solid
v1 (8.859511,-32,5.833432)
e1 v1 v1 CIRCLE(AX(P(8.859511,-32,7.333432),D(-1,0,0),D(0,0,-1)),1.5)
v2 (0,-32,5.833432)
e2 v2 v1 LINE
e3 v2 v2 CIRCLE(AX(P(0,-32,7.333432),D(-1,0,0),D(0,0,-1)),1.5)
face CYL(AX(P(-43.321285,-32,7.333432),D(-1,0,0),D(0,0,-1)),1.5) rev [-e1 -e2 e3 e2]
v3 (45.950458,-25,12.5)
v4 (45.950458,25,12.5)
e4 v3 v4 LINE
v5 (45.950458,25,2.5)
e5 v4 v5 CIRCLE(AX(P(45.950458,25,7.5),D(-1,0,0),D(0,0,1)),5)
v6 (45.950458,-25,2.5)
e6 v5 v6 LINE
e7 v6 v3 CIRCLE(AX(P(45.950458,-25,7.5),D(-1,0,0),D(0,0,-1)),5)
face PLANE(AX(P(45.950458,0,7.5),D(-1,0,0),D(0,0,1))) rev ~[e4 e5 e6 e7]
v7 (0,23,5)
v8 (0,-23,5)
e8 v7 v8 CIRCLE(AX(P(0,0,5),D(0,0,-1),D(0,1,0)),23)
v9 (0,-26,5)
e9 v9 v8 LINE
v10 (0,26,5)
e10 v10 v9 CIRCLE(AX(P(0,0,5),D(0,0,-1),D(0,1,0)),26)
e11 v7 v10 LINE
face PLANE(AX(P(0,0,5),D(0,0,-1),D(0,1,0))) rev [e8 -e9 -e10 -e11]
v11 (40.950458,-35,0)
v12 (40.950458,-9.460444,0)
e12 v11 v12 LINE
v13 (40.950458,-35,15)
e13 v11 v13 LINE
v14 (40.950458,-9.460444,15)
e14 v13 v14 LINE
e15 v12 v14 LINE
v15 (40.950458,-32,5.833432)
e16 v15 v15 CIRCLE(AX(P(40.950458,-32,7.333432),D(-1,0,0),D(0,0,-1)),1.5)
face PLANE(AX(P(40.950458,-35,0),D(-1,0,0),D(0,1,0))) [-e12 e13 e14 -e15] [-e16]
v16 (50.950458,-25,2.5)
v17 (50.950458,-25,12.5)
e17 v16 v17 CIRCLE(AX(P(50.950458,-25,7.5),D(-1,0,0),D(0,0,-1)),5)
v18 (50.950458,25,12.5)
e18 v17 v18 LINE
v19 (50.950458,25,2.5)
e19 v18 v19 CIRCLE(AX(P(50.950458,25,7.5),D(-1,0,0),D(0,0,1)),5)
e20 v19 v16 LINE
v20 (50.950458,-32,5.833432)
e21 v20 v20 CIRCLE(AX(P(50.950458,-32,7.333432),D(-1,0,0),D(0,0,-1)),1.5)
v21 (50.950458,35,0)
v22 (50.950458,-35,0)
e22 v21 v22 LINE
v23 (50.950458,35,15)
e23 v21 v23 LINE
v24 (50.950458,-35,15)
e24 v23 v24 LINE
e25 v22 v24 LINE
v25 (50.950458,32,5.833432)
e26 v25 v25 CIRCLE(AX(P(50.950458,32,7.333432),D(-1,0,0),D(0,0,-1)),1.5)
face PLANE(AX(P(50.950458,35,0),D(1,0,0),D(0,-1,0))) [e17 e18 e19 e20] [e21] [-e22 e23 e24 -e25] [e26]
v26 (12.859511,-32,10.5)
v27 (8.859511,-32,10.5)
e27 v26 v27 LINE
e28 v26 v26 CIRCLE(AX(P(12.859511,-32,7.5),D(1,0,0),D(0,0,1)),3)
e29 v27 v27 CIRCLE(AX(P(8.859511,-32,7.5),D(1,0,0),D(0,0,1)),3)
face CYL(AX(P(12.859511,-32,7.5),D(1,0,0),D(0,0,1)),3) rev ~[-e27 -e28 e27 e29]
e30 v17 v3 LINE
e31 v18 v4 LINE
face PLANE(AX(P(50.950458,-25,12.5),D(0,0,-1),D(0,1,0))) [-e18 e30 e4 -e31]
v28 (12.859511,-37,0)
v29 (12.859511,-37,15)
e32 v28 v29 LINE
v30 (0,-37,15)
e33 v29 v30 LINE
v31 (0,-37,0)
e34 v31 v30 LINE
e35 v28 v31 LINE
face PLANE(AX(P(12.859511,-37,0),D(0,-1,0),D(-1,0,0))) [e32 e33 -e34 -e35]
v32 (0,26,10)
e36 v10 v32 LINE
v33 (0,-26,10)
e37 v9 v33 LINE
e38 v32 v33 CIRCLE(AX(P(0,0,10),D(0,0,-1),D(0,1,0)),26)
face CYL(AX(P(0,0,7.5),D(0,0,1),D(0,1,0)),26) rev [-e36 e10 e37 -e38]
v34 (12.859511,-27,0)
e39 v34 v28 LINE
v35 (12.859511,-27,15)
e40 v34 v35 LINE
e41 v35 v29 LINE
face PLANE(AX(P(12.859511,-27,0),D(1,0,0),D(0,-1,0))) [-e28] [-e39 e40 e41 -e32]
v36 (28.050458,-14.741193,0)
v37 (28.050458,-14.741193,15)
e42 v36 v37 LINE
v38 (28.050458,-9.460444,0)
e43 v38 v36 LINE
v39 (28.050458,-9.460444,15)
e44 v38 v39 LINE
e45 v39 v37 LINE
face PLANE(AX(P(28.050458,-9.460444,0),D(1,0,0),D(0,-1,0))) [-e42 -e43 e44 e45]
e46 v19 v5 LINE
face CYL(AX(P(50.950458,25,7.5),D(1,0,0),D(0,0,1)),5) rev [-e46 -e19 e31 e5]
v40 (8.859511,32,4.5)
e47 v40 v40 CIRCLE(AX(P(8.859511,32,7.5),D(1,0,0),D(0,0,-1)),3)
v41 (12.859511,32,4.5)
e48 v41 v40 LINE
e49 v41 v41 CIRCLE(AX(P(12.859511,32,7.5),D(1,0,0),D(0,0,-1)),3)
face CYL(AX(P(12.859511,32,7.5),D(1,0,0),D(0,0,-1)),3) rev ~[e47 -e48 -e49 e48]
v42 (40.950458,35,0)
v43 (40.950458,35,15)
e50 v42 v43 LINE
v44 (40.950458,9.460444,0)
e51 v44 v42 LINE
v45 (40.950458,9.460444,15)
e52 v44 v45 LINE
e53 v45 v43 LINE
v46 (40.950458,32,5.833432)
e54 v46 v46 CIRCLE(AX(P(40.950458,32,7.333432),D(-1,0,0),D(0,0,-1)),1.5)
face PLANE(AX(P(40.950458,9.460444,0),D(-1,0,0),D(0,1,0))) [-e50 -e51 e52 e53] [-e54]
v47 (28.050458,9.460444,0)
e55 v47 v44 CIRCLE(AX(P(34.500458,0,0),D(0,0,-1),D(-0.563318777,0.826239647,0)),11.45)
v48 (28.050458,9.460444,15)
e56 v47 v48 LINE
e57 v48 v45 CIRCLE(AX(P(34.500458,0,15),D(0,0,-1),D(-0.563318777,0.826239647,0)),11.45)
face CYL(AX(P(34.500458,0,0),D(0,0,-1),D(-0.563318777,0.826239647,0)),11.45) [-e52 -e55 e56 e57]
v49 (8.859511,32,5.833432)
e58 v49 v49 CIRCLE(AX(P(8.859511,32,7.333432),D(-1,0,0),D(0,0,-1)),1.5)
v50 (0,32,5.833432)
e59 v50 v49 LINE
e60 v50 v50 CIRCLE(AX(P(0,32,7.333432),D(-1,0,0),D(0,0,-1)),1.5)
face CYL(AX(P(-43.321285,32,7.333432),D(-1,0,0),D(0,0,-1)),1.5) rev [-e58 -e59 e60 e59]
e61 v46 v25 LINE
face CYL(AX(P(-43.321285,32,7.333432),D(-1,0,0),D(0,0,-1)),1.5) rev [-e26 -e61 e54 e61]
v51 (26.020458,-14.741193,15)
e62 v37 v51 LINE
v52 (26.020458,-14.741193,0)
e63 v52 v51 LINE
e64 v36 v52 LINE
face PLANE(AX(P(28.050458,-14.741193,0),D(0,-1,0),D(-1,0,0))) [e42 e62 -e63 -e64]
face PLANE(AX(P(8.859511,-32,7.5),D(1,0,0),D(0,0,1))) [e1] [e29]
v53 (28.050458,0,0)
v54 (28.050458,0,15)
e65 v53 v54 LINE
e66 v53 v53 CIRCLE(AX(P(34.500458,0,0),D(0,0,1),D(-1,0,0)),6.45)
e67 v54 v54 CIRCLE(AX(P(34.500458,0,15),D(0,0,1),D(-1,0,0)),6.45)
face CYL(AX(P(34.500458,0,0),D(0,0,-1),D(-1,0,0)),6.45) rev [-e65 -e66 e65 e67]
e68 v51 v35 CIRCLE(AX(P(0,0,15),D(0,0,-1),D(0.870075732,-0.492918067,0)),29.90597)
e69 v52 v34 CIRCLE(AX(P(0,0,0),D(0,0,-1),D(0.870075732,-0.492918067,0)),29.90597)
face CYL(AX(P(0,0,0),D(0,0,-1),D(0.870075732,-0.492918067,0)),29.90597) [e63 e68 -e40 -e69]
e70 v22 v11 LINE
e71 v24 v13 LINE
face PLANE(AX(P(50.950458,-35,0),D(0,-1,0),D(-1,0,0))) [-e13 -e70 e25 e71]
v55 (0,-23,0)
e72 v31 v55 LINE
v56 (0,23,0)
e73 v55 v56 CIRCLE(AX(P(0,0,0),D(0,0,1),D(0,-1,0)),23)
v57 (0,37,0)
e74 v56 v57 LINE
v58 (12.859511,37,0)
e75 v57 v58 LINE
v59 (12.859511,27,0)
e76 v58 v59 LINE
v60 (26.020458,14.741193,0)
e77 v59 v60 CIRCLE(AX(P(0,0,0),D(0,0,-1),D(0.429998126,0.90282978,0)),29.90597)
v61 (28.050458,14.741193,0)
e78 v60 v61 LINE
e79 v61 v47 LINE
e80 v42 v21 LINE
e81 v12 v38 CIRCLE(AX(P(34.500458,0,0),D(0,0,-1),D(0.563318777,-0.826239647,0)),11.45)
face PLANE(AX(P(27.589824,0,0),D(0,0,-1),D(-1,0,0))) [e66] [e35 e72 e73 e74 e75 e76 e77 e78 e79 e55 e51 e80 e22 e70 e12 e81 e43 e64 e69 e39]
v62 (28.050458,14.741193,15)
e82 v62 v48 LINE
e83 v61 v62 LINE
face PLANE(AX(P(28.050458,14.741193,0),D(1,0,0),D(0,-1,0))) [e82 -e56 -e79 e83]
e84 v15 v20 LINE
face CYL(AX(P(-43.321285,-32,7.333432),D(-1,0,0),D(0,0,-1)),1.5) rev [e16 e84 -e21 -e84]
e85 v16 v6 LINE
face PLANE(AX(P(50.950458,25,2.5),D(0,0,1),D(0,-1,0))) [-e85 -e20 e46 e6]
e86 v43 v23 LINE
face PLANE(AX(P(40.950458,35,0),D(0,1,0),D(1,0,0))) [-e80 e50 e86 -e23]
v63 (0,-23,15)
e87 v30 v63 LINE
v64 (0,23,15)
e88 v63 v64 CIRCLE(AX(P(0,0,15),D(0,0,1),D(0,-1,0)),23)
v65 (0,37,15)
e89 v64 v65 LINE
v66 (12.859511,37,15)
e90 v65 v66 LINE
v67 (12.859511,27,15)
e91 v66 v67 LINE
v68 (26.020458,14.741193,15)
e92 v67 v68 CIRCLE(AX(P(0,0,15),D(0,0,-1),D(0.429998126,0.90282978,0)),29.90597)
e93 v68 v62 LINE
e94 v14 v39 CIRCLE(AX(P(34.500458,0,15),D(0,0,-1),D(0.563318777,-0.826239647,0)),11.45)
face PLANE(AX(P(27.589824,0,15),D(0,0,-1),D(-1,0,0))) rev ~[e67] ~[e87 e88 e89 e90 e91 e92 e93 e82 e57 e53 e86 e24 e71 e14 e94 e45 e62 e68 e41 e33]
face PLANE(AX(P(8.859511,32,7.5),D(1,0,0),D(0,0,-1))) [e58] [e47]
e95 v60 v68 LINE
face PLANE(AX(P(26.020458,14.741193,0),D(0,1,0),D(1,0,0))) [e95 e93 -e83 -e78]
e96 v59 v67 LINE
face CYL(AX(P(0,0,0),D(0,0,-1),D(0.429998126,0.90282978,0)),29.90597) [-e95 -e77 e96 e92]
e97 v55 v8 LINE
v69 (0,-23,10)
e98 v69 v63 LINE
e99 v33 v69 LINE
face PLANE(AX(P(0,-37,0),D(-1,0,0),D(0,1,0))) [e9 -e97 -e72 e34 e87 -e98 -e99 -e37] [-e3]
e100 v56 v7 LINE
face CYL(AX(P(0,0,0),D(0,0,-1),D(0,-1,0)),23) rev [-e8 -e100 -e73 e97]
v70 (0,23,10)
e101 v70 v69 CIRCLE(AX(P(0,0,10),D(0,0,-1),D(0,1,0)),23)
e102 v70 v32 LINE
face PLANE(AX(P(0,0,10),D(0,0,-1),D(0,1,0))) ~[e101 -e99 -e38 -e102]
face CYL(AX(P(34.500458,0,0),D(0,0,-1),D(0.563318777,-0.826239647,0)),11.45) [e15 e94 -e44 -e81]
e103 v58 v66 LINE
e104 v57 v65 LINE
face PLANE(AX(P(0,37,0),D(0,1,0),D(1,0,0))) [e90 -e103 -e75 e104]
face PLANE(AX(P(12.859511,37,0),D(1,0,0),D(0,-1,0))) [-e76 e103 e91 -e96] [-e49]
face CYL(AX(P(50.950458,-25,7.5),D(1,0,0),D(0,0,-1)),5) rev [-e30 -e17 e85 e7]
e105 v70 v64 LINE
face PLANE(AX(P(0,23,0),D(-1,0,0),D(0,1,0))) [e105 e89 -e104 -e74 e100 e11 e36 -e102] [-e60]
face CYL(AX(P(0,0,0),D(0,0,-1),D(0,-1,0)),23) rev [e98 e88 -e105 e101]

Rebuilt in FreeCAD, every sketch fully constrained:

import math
import FreeCAD as App
import Part
import Sketcher
from FreeCAD import Vector


def add_polygon(sketch, points):
    """Adds a closed chain of lines whose ends are joined by coincident constraints."""
    first, n = sketch.GeometryCount, len(points)
    for a, b in zip(points, points[1:] + points[:1]):
        sketch.addGeometry(Part.LineSegment(App.Vector(*a, 0), App.Vector(*b, 0)), False)
    for i in range(n):
        sketch.addConstraint(Sketcher.Constraint("Coincident", first + i, 2, first + (i + 1) % n, 1))

doc = App.newDocument("Part")
body = doc.addObject("PartDesign::Body", "Body")

sketch1 = body.newObject("Sketcher::SketchObject", "Sketch")
sketch1.AttachmentSupport = (doc.getObject("XY_Plane"), [""])
sketch1.MapMode = "FlatFace"
sketch1.addGeometry([
    Part.LineSegment(Vector(0, 37, 0), Vector(0, 23, 0)),
    Part.ArcOfCircle(Part.Circle(Vector(0, 0, 0), Vector(0, 0, 1), 23), math.radians(-90), math.radians(90)),
    Part.LineSegment(Vector(0, -23, 0), Vector(0, -37, 0)),
    Part.LineSegment(Vector(0, -37, 0), Vector(12.9, -37, 0)),
    Part.LineSegment(Vector(12.9, -37, 0), Vector(12.9, -27, 0)),
    Part.ArcOfCircle(Part.Circle(Vector(0, 0, 0), Vector(0, 0, 1), 29.9), math.radians(-65), math.radians(-30)),
    Part.LineSegment(Vector(26, -14.7, 0), Vector(28.1, -14.7, 0)),
    Part.LineSegment(Vector(28.1, -14.7, 0), Vector(28.1, -9.5, 0)),
    Part.ArcOfCircle(Part.Circle(Vector(34.5, 0, 0), Vector(0, 0, 1), 11.4), math.radians(-124), math.radians(-56)),
    Part.LineSegment(Vector(41, -9.5, 0), Vector(41, -35, 0)),
    Part.LineSegment(Vector(41, -35, 0), Vector(51, -35, 0)),
    Part.LineSegment(Vector(51, -35, 0), Vector(51, 35, 0)),
    Part.LineSegment(Vector(51, 35, 0), Vector(41, 35, 0)),
    Part.LineSegment(Vector(41, 35, 0), Vector(41, 9.5, 0)),
    Part.ArcOfCircle(Part.Circle(Vector(34.5, 0, 0), Vector(0, 0, 1), 11.4), math.radians(56), math.radians(124)),
    Part.LineSegment(Vector(28.1, 9.5, 0), Vector(28.1, 14.7, 0)),
    Part.LineSegment(Vector(28.1, 14.7, 0), Vector(26, 14.7, 0)),
    Part.ArcOfCircle(Part.Circle(Vector(0, 0, 0), Vector(0, 0, 1), 29.9), math.radians(30), math.radians(65)),
    Part.LineSegment(Vector(12.9, 27, 0), Vector(12.9, 37, 0)),
    Part.LineSegment(Vector(12.9, 37, 0), Vector(0, 37, 0)),
    Part.Circle(Vector(34.5, 0, 0), Vector(0, 0, 1), 6.5),
], False)
sketch1.addConstraint([
    Sketcher.Constraint("Coincident", 0, 2, 1, 2),
    Sketcher.Constraint("Coincident", 1, 1, 2, 1),
    Sketcher.Constraint("Coincident", 2, 2, 3, 1),
    Sketcher.Constraint("Coincident", 3, 2, 4, 1),
    Sketcher.Constraint("Coincident", 4, 2, 5, 1),
    Sketcher.Constraint("Coincident", 5, 2, 6, 1),
    Sketcher.Constraint("Coincident", 6, 2, 7, 1),
    Sketcher.Constraint("Coincident", 7, 2, 8, 1),
    Sketcher.Constraint("Coincident", 8, 2, 9, 1),
    Sketcher.Constraint("Coincident", 9, 2, 10, 1),
    Sketcher.Constraint("Coincident", 10, 2, 11, 1),
    Sketcher.Constraint("Coincident", 11, 2, 12, 1),
    Sketcher.Constraint("Coincident", 12, 2, 13, 1),
    Sketcher.Constraint("Coincident", 13, 2, 14, 1),
    Sketcher.Constraint("Coincident", 14, 2, 15, 1),
    Sketcher.Constraint("Coincident", 15, 2, 16, 1),
    Sketcher.Constraint("Coincident", 16, 2, 17, 1),
    Sketcher.Constraint("Coincident", 17, 2, 18, 1),
    Sketcher.Constraint("Coincident", 18, 2, 19, 1),
    Sketcher.Constraint("Coincident", 19, 2, 0, 1),
    Sketcher.Constraint("Vertical", 0),
    Sketcher.Constraint("Vertical", 2),
    Sketcher.Constraint("Horizontal", 3),
    Sketcher.Constraint("Vertical", 4),
    Sketcher.Constraint("Horizontal", 6),
    Sketcher.Constraint("Vertical", 7),
    Sketcher.Constraint("Vertical", 9),
    Sketcher.Constraint("Horizontal", 10),
    Sketcher.Constraint("Vertical", 11),
    Sketcher.Constraint("Horizontal", 12),
    Sketcher.Constraint("Vertical", 13),
    Sketcher.Constraint("Vertical", 15),
    Sketcher.Constraint("Horizontal", 16),
    Sketcher.Constraint("Vertical", 18),
    Sketcher.Constraint("Horizontal", 19),
    Sketcher.Constraint("Coincident", 1, 3, -1, 1),
    Sketcher.Constraint("Coincident", 5, 3, -1, 1),
    Sketcher.Constraint("Coincident", 17, 3, -1, 1),
    Sketcher.Constraint("Coincident", 14, 3, 8, 3),
    Sketcher.Constraint("Coincident", 20, 3, 8, 3),
    Sketcher.Constraint("Equal", 8, 14),
    Sketcher.Constraint("Equal", 5, 17),
    Sketcher.Constraint("Symmetric", 2, 2, 19, 2, -1, 1),
    Sketcher.Constraint("Symmetric", 9, 2, 12, 2, -1),
    Sketcher.Constraint("Symmetric", 7, 2, 14, 2, -1),
    Sketcher.Constraint("PointOnObject", 0, 2, -2),
    Sketcher.Constraint("Horizontal", 7, 2, 8, 2),
    Sketcher.Constraint("Vertical", 5, 2, 16, 2),
    Sketcher.Constraint("Vertical", 4, 2, 17, 2),
    Sketcher.Constraint("Equal", 12, 4),
    Sketcher.Constraint("Radius", 1, 23.0),
    Sketcher.Constraint("Diameter", 20, 12.9),
    Sketcher.Constraint("DistanceX", 10, 1, 10, 2, 10.0),
    Sketcher.Constraint("DistanceY", 0, 2, 0, 1, 14.0),
    Sketcher.Constraint("DistanceY", 11, 1, 11, 2, 70.0),
    Sketcher.Constraint("Radius", 8, 11.45),
    Sketcher.Constraint("DistanceX", 6, 1, 6, 2, 2.03),
    Sketcher.Constraint("DistanceX", 7, 2, 8, 2, 12.9),
    Sketcher.Constraint("Radius", 5, 29.90597),
    Sketcher.Constraint("DistanceY", 7, 1, 7, 2, 5.280749),
])
pad1 = body.newObject("PartDesign::Pad", "Pad")
pad1.Profile = sketch1
pad1.Length = 15

sketch2 = body.newObject("Sketcher::SketchObject", "Sketch001")
sketch2.AttachmentSupport = (doc.getObject("YZ_Plane"), [""])
sketch2.MapMode = "FlatFace"
add_polygon(sketch2, [(26, 5), (23, 5), (23, 10), (26, 10)])
sketch2.addConstraint([
    Sketcher.Constraint("Horizontal", 0),
    Sketcher.Constraint("Vertical", 1),
    Sketcher.Constraint("Horizontal", 2),
    Sketcher.Constraint("Vertical", 3),
    Sketcher.Constraint("DistanceX", 0, 2, 0, 1, 3.0),
    Sketcher.Constraint("DistanceY", 1, 1, 1, 2, 5.0),
    Sketcher.Constraint("DistanceX", -1, 1, 0, 2, 23.0),
    Sketcher.Constraint("DistanceY", -1, 1, 0, 2, 5.0),
])
groove = body.newObject("PartDesign::Groove", "Groove")
groove.Profile = sketch2
groove.ReferenceAxis = (sketch2, ["V_Axis"])
groove.Angle = 360

sketch3 = body.newObject("Sketcher::SketchObject", "Sketch002")
sketch3.AttachmentSupport = (doc.getObject("YZ_Plane"), [""])
sketch3.MapMode = "FlatFace"
sketch3.AttachmentOffset = App.Placement(Vector(0, 0, 50.950458), App.Rotation())
sketch3.addGeometry([
    Part.LineSegment(Vector(25, 12, 0), Vector(-25, 12, 0)),
    Part.ArcOfCircle(Part.Circle(Vector(-25, 8, 0), Vector(0, 0, 1), 5), math.radians(90), math.radians(270)),
    Part.LineSegment(Vector(-25, 2, 0), Vector(25, 2, 0)),
    Part.ArcOfCircle(Part.Circle(Vector(25, 8, 0), Vector(0, 0, 1), 5), math.radians(-90), math.radians(90)),
], False)
sketch3.addConstraint([
    Sketcher.Constraint("Tangent", 0, 2, 1, 1),
    Sketcher.Constraint("Tangent", 1, 2, 2, 1),
    Sketcher.Constraint("Tangent", 2, 2, 3, 1),
    Sketcher.Constraint("Tangent", 3, 2, 0, 1),
    Sketcher.Constraint("Horizontal", 0),
    Sketcher.Constraint("Horizontal", 2),
    Sketcher.Constraint("Radius", 1, 5.0),
    Sketcher.Constraint("DistanceX", 0, 2, 0, 1, 50.0),
    Sketcher.Constraint("DistanceX", 1, 3, -1, 1, 25.0),
    Sketcher.Constraint("DistanceY", -1, 1, 1, 3, 7.5),
])
pocket1 = body.newObject("PartDesign::Pocket", "Pocket")
pocket1.Profile = sketch3
pocket1.Length = 5

sketch4 = body.newObject("Sketcher::SketchObject", "Sketch003")
sketch4.AttachmentSupport = (doc.getObject("YZ_Plane"), [""])
sketch4.MapMode = "FlatFace"
sketch4.AttachmentOffset = App.Placement(Vector(0, 0, 12.859511), App.Rotation())
sketch4.addGeometry([
    Part.Circle(Vector(32, 7.3, 0), Vector(0, 0, 1), 1.5),
    Part.Circle(Vector(-32, 7.3, 0), Vector(0, 0, 1), 1.5),
], False)
sketch4.addConstraint([
    Sketcher.Constraint("Equal", 0, 1),
    Sketcher.Constraint("Symmetric", 0, 3, 1, 3, -2),
    Sketcher.Constraint("Diameter", 0, 3.0),
    Sketcher.Constraint("DistanceX", -1, 1, 0, 3, 32.0),
    Sketcher.Constraint("DistanceY", -1, 1, 0, 3, 7.333432),
])
pocket2 = body.newObject("PartDesign::Pocket", "Pocket001")
pocket2.Profile = sketch4
pocket2.Type = "ThroughAll"
pocket2.Midplane = True

sketch5 = body.newObject("Sketcher::SketchObject", "Sketch004")
sketch5.AttachmentSupport = (doc.getObject("YZ_Plane"), [""])
sketch5.MapMode = "FlatFace"
sketch5.AttachmentOffset = App.Placement(Vector(0, 0, 12.859511), App.Rotation())
sketch5.addGeometry([
    Part.Circle(Vector(32, 7.5, 0), Vector(0, 0, 1), 3),
    Part.Circle(Vector(-32, 7.5, 0), Vector(0, 0, 1), 3),
], False)
sketch5.addConstraint([
    Sketcher.Constraint("Equal", 0, 1),
    Sketcher.Constraint("Symmetric", 0, 3, 1, 3, -2),
    Sketcher.Constraint("Diameter", 0, 6.0),
    Sketcher.Constraint("DistanceX", -1, 1, 0, 3, 32.0),
    Sketcher.Constraint("DistanceY", -1, 1, 0, 3, 7.5),
])
pocket3 = body.newObject("PartDesign::Pocket", "Pocket002")
pocket3.Profile = sketch5
pocket3.Length = 4

doc.recompute()
